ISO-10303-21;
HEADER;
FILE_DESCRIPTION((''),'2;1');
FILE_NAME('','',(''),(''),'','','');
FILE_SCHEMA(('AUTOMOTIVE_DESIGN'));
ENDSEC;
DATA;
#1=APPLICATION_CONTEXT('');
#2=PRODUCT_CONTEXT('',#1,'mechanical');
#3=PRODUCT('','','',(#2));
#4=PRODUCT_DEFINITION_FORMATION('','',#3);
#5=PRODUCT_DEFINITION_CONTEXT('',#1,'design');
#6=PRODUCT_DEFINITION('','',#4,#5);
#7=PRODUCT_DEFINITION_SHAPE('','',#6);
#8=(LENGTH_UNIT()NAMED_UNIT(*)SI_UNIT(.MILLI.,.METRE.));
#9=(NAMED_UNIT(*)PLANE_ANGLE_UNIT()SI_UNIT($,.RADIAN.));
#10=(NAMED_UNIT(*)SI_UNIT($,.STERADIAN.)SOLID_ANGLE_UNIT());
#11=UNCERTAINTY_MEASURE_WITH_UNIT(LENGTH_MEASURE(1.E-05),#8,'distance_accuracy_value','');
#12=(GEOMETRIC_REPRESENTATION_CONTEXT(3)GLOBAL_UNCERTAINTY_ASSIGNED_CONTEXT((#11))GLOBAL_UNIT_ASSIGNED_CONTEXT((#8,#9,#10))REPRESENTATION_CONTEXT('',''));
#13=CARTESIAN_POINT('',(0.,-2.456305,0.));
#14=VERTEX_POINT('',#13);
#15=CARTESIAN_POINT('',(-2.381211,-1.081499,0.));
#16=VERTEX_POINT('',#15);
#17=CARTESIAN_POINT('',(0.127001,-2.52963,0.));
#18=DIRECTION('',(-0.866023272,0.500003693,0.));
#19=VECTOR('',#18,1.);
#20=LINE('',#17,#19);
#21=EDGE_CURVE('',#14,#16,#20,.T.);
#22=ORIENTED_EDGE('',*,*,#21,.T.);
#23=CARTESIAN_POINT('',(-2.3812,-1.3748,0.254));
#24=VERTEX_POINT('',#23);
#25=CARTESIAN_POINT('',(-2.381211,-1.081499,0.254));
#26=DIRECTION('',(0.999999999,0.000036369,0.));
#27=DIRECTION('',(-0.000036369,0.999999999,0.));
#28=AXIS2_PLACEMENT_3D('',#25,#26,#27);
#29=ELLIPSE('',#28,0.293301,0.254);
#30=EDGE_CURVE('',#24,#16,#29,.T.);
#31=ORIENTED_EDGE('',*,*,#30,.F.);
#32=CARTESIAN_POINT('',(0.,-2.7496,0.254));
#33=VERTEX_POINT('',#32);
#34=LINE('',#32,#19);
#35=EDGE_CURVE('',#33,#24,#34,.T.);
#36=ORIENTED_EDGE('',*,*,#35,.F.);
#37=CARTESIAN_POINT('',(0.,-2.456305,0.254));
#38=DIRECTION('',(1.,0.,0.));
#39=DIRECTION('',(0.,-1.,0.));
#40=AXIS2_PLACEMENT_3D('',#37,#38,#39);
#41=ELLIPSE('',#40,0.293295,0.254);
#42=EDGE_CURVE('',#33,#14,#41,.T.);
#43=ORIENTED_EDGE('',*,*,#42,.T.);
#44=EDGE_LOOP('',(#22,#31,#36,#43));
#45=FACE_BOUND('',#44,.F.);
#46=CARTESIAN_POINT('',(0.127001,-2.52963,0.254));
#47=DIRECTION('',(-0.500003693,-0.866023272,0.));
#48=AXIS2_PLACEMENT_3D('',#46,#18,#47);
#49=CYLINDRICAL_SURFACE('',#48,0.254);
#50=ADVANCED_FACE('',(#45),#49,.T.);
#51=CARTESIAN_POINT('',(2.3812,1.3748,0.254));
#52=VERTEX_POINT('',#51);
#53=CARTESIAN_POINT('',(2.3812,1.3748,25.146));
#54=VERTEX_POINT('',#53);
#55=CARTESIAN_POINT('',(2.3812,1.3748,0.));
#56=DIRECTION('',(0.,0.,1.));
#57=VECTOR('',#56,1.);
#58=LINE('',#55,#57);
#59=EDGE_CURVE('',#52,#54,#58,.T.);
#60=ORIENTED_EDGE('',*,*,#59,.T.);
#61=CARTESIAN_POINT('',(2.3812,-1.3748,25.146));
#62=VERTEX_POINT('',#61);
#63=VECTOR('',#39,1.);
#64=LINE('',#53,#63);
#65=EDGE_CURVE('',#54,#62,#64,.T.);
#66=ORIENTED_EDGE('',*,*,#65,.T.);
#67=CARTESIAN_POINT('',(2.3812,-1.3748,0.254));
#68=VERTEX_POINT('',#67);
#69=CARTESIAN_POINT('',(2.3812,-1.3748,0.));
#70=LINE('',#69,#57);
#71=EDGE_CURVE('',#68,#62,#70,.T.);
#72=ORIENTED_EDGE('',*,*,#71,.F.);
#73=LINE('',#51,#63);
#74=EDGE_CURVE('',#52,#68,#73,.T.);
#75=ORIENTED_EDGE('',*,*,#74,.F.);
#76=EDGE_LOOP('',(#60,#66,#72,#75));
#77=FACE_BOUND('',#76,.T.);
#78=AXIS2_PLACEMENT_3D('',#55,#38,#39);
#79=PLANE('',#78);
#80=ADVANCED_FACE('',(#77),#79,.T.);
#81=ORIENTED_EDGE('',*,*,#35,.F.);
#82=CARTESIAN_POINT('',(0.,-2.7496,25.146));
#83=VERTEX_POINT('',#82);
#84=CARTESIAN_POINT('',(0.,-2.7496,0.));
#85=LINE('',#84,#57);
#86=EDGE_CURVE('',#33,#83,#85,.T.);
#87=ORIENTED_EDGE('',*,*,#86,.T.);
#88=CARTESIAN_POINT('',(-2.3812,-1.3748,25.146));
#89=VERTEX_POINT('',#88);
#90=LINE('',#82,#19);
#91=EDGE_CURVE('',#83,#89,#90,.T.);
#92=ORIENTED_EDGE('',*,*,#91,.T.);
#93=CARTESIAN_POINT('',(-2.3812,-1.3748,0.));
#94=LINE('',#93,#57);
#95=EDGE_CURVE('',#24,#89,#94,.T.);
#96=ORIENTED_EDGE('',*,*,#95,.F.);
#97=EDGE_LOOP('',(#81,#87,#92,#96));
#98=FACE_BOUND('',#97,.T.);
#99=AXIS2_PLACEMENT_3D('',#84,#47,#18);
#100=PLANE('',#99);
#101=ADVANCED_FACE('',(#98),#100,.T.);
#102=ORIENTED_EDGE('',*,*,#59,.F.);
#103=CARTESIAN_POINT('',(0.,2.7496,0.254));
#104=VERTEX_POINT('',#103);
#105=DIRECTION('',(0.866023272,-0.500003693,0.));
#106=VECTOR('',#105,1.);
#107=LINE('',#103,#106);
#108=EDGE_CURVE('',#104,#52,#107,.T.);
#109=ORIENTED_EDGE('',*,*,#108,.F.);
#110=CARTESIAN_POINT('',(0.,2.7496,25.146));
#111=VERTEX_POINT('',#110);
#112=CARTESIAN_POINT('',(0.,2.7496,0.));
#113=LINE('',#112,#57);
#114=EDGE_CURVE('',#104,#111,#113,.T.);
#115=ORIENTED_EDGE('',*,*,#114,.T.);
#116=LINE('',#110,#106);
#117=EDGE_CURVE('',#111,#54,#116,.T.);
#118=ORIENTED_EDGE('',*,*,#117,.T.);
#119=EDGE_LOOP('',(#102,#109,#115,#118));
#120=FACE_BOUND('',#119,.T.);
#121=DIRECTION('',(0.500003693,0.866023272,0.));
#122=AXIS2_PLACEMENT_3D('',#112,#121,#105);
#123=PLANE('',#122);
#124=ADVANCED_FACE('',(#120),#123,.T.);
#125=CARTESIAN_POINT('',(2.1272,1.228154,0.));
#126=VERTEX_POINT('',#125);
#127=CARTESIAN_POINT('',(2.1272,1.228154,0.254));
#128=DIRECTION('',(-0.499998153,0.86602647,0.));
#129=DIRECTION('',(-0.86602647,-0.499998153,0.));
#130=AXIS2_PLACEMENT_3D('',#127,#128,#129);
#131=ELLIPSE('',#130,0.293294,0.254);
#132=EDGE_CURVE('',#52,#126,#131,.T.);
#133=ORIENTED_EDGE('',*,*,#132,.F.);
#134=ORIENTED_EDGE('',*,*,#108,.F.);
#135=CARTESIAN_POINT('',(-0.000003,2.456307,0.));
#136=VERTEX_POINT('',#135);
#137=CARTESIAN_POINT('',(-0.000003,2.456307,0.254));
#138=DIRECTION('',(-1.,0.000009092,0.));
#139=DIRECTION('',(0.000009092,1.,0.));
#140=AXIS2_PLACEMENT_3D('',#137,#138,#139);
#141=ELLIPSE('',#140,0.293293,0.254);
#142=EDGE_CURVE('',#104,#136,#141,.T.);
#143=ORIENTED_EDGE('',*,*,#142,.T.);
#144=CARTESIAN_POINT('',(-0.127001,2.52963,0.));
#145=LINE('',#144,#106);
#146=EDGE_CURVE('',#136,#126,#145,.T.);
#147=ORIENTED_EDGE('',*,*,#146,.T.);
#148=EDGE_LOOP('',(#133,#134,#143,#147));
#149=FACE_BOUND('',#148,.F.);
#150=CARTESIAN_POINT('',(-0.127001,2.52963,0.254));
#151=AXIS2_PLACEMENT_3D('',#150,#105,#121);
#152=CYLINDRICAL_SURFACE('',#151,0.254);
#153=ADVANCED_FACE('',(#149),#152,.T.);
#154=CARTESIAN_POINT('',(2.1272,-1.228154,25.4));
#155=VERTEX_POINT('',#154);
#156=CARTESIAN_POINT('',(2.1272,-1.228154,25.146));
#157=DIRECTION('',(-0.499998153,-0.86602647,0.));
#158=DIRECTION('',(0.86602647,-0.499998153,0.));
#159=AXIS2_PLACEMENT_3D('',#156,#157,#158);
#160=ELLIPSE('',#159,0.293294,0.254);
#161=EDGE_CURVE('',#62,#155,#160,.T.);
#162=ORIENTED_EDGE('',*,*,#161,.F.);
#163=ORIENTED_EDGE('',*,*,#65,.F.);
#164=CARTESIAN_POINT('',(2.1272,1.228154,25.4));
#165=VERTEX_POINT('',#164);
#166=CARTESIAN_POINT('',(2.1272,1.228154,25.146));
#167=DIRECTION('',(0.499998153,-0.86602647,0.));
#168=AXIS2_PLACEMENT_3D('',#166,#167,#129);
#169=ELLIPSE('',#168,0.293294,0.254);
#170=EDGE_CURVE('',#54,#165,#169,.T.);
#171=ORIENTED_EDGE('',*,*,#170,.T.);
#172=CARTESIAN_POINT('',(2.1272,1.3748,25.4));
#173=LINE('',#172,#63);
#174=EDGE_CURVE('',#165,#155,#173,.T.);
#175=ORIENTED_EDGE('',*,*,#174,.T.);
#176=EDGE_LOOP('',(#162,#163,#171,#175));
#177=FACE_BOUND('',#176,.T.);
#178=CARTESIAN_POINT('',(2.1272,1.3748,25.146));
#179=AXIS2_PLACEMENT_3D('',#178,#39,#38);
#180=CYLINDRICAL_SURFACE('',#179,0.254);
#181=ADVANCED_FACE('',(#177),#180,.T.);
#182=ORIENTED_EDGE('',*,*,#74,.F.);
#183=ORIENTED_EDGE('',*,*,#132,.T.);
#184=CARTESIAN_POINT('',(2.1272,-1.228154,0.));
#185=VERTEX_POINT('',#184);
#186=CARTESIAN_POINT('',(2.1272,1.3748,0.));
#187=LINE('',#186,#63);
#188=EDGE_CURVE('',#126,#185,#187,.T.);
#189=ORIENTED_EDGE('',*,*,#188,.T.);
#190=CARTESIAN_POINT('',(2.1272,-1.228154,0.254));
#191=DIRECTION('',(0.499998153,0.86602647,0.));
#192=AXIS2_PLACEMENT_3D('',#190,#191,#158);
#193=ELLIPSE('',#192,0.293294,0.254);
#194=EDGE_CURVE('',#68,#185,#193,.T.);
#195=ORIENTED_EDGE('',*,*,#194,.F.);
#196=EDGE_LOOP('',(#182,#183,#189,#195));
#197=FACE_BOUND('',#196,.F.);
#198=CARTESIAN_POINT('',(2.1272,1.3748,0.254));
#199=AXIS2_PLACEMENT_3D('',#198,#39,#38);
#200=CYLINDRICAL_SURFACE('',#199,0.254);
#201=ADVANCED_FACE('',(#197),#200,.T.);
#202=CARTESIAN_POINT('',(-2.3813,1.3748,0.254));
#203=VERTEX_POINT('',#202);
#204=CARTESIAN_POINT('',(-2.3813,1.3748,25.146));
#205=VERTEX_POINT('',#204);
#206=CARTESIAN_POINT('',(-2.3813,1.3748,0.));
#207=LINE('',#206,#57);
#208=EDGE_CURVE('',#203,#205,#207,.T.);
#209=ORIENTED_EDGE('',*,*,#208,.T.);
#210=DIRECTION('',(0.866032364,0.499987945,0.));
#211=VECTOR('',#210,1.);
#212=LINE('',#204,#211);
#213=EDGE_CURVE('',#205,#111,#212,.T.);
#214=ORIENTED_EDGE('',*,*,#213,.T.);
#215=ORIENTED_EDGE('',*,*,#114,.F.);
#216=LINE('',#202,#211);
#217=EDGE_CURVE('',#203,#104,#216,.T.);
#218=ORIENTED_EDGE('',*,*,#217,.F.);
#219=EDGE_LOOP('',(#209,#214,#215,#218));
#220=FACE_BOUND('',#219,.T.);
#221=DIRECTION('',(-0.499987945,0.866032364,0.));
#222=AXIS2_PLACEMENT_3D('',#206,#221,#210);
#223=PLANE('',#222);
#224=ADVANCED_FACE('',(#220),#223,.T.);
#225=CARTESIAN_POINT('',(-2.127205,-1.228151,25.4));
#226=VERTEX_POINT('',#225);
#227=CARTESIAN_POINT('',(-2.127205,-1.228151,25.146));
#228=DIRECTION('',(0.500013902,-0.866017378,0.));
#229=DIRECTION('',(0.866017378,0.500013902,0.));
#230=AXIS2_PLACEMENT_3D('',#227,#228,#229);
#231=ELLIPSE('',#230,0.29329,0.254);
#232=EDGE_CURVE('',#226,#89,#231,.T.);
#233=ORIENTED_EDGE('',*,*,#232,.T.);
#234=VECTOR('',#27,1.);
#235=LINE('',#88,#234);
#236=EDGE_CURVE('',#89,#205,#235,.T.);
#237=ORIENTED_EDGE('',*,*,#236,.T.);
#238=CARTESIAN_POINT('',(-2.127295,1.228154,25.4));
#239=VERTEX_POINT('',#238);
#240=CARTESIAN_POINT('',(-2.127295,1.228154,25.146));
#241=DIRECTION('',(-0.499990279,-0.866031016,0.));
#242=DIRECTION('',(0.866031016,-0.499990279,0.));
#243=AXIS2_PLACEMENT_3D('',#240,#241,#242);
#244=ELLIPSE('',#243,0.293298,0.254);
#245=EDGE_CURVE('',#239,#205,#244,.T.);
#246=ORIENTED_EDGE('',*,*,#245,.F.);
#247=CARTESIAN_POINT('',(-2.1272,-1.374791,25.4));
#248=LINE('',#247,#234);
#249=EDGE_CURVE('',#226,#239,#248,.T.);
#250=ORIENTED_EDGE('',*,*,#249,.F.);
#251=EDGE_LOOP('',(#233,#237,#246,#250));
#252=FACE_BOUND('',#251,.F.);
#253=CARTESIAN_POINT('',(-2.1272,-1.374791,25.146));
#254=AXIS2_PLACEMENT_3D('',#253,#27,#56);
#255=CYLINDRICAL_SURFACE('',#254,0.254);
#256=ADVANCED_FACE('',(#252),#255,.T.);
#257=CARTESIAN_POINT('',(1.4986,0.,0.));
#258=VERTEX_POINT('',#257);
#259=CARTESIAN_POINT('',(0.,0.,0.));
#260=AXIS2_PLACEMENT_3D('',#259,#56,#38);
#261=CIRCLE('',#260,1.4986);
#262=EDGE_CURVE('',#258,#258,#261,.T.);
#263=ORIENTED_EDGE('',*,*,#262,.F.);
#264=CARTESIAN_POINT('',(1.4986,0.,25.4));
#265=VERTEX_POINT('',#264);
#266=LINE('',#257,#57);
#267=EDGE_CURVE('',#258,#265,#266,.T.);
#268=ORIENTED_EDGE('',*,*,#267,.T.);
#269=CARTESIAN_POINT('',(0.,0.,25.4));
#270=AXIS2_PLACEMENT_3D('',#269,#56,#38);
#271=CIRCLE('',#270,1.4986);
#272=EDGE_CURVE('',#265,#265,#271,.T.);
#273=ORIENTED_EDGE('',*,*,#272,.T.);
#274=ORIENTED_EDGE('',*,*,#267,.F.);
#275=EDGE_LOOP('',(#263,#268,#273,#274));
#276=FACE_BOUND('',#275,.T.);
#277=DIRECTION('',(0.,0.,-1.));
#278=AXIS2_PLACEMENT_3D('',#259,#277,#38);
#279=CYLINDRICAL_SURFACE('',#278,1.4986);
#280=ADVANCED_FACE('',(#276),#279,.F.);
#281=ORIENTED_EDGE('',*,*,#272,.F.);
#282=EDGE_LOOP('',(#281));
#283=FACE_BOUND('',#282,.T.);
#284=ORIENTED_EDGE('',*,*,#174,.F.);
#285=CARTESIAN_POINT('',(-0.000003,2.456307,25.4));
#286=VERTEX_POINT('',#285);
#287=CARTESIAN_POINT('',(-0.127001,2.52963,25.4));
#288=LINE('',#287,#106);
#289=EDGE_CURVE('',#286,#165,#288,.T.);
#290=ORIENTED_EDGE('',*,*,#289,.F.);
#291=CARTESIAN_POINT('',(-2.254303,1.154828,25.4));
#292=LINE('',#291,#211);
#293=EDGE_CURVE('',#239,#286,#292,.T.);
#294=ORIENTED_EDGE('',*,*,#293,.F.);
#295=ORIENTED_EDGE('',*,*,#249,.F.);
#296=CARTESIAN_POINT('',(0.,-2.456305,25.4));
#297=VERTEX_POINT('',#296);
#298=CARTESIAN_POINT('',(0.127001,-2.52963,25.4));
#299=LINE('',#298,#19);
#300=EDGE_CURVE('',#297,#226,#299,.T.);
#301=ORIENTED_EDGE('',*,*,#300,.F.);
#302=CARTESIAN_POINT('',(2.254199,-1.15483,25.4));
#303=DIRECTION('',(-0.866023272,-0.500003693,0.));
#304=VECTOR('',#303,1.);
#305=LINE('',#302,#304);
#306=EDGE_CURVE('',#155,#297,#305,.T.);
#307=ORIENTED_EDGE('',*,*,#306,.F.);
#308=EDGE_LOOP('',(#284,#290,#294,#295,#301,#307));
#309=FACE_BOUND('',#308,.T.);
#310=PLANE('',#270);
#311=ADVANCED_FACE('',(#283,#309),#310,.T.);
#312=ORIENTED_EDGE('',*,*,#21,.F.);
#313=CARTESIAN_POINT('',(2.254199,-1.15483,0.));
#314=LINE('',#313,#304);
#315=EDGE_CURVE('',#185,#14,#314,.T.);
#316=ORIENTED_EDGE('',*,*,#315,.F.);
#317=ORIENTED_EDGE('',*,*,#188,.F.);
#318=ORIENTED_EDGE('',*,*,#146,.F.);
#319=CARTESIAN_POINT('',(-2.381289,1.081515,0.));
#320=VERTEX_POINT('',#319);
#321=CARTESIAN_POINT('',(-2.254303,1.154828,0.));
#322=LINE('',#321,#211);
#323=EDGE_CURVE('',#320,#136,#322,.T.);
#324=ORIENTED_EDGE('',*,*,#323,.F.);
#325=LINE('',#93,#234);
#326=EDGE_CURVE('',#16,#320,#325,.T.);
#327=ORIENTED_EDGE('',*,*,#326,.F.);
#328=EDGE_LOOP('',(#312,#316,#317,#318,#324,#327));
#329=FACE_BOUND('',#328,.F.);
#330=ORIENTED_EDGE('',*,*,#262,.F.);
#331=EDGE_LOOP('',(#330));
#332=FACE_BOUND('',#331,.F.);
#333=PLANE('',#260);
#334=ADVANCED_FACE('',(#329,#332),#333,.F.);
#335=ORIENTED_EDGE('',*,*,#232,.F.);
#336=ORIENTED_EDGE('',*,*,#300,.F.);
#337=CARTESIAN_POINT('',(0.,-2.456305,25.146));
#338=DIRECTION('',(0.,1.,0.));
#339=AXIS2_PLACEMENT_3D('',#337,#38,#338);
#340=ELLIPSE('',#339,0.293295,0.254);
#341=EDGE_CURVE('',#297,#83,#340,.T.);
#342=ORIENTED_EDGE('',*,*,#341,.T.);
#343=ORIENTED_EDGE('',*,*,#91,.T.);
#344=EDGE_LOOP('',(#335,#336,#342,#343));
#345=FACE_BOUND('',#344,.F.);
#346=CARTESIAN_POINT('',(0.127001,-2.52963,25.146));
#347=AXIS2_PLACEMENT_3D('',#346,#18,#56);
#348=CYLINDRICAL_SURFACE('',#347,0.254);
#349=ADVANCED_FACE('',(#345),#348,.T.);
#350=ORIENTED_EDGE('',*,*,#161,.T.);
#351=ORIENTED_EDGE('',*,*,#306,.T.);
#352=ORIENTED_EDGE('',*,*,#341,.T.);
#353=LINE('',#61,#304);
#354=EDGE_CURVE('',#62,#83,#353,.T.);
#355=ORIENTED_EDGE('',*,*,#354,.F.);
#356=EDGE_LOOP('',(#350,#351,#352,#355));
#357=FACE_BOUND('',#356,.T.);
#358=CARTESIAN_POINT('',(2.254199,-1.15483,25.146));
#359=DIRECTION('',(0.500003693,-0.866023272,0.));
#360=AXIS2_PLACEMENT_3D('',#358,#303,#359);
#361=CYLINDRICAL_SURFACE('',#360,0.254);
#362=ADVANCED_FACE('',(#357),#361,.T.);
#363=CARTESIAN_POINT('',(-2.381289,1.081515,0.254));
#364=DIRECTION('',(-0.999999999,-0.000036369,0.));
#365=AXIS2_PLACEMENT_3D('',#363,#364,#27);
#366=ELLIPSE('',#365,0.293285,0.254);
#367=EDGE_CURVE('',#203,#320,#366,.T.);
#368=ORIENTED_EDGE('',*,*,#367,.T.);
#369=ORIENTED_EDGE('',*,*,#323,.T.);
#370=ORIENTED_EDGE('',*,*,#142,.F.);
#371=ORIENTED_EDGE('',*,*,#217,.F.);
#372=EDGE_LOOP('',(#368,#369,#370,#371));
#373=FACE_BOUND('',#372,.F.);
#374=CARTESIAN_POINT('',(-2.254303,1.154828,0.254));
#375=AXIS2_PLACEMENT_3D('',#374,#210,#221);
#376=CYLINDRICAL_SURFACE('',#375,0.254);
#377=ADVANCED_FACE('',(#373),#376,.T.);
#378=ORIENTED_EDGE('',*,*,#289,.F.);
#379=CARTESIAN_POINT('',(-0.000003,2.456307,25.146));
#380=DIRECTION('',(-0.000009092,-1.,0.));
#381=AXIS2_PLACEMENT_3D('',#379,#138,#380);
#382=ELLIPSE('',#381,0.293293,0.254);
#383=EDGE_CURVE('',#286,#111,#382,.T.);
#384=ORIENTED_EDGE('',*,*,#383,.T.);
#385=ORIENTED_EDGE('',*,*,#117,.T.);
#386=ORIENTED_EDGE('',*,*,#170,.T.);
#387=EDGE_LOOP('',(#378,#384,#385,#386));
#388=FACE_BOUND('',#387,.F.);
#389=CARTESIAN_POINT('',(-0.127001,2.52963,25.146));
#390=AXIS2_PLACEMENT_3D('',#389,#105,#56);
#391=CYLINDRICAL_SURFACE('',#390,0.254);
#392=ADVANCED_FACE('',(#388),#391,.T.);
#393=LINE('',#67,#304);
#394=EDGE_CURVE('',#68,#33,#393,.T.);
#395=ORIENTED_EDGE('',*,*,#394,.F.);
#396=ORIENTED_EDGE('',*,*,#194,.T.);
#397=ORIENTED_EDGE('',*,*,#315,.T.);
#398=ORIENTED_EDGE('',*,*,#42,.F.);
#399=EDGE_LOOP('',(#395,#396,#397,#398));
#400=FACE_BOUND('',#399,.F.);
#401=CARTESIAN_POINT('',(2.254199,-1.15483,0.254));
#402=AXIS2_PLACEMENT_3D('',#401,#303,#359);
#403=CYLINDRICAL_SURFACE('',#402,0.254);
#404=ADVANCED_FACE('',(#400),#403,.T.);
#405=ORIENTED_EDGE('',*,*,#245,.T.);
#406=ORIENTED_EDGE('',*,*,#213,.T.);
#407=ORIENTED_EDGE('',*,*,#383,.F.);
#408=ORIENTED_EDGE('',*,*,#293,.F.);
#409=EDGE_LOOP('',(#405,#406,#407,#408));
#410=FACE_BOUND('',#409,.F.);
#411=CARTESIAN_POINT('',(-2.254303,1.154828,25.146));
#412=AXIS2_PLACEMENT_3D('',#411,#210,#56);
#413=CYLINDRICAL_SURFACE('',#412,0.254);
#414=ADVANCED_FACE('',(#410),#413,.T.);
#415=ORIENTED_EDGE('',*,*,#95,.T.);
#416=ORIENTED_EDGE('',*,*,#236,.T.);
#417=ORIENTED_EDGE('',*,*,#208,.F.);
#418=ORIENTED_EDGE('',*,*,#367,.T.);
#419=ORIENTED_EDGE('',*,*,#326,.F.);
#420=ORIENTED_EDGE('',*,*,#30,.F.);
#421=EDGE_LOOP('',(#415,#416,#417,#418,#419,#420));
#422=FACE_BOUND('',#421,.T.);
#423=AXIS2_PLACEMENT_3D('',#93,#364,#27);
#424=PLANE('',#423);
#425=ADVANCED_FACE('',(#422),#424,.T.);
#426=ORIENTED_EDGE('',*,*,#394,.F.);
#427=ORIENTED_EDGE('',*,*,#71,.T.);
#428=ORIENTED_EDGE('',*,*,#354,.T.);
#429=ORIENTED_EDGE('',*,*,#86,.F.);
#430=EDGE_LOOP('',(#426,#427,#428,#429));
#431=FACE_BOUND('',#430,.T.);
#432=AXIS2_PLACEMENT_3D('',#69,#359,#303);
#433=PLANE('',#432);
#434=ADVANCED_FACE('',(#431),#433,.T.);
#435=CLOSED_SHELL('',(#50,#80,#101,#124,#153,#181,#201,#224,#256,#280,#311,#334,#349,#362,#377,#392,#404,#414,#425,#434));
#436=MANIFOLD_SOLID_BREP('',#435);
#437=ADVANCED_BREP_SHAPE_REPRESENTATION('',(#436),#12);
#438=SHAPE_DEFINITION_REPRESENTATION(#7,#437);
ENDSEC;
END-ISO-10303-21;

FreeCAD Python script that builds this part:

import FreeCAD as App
import Part
import Sketcher
Q = App.Units.Quantity


def edges_at(feature, points):
    """Names of the edges that pass closest to the given points."""
    edges = feature.Shape.Edges
    near = lambda p: min(range(len(edges)), key=lambda i: edges[i].distToShape(Part.Vertex(*p))[0])
    return sorted({f"Edge{near(p) + 1}" for p in points})

doc = App.newDocument("Part")
body = doc.addObject("PartDesign::Body", "Body")

sketch1 = body.newObject("Sketcher::SketchObject", "Sketch")
sketch1.AttachmentSupport = (doc.getObject("XY_Plane"), [""])
sketch1.MapMode = "FlatFace"
sketch1.addGeometry([
    Part.LineSegment(App.Vector(0, -2.7496, 0), App.Vector(2.3812, -1.3748, 0)),
    Part.LineSegment(App.Vector(2.3812, -1.3748, 0), App.Vector(2.3812, 1.3748, 0)),
    Part.LineSegment(App.Vector(2.3812, 1.3748, 0), App.Vector(0, 2.7496, 0)),
    Part.LineSegment(App.Vector(0, 2.7496, 0), App.Vector(-2.3813, 1.3748, 0)),
    Part.LineSegment(App.Vector(-2.3813, 1.3748, 0), App.Vector(-2.3812, -1.3748, 0)),
    Part.LineSegment(App.Vector(-2.3812, -1.3748, 0), App.Vector(0, -2.7496, 0)),
    Part.Circle(App.Vector(0, 0, 0), App.Vector(0, 0, 1), 1.4986),
], False)
sketch1.addConstraint([
    Sketcher.Constraint("Coincident", 0, 2, 1, 1),
    Sketcher.Constraint("Coincident", 1, 2, 2, 1),
    Sketcher.Constraint("Coincident", 2, 2, 3, 1),
    Sketcher.Constraint("Coincident", 3, 2, 4, 1),
    Sketcher.Constraint("Coincident", 4, 2, 5, 1),
    Sketcher.Constraint("Coincident", 5, 2, 0, 1),
    Sketcher.Constraint("Vertical", 1),
    Sketcher.Constraint("Vertical", 4),
    Sketcher.Constraint("Coincident", 6, 3, -1, 1),
    Sketcher.Constraint("Symmetric", 0, 2, 3, 2, -1, 1),
    Sketcher.Constraint("Symmetric", 2, 2, 5, 2, -1, 1),
    Sketcher.Constraint("PointOnObject", 2, 2, -2),
    Sketcher.Constraint("Parallel", 2, 5),
    Sketcher.Constraint("Horizontal", 1, 2, 3, 2),
    Sketcher.Constraint("Diameter", 6, Q("0.118 in")),
    Sketcher.Constraint("Angle", 0, Q("30.0002 deg")),
    Sketcher.Constraint("DistanceX", -1, 1, 0, 2, Q("0.093748 in")),
    Sketcher.Constraint("DistanceY", 1, 1, 1, 2, Q("2.7496 mm")),
])
pad1 = body.newObject("PartDesign::Pad", "Pad")
pad1.Profile = sketch1
pad1.Length = Q("1 in")
doc.recompute()

fillet = body.newObject("PartDesign::Fillet", "Fillet")
fillet.Base = (pad1, edges_at(pad1, [
    (2.381, 0, 0),
    (1.191, -2.062, 0),
    (-1.191, -2.062, 0),
    (-1.191, 2.062, 0),
    (1.191, 2.062, 0),
]))
fillet.Radius = Q("0.01 in")
doc.recompute()

fillet2 = body.newObject("PartDesign::Fillet", "Fillet001")
fillet2.Base = (fillet, edges_at(fillet, [
    (2.381, 0, 25.4),
    (1.191, 2.062, 25.4),
    (-1.191, 2.062, 25.4),
    (-2.381, 0, 25.4),
    (-1.191, -2.062, 25.4),
    (1.191, -2.062, 25.4),
]))
fillet2.Radius = Q("0.01 in")

doc.recompute()
